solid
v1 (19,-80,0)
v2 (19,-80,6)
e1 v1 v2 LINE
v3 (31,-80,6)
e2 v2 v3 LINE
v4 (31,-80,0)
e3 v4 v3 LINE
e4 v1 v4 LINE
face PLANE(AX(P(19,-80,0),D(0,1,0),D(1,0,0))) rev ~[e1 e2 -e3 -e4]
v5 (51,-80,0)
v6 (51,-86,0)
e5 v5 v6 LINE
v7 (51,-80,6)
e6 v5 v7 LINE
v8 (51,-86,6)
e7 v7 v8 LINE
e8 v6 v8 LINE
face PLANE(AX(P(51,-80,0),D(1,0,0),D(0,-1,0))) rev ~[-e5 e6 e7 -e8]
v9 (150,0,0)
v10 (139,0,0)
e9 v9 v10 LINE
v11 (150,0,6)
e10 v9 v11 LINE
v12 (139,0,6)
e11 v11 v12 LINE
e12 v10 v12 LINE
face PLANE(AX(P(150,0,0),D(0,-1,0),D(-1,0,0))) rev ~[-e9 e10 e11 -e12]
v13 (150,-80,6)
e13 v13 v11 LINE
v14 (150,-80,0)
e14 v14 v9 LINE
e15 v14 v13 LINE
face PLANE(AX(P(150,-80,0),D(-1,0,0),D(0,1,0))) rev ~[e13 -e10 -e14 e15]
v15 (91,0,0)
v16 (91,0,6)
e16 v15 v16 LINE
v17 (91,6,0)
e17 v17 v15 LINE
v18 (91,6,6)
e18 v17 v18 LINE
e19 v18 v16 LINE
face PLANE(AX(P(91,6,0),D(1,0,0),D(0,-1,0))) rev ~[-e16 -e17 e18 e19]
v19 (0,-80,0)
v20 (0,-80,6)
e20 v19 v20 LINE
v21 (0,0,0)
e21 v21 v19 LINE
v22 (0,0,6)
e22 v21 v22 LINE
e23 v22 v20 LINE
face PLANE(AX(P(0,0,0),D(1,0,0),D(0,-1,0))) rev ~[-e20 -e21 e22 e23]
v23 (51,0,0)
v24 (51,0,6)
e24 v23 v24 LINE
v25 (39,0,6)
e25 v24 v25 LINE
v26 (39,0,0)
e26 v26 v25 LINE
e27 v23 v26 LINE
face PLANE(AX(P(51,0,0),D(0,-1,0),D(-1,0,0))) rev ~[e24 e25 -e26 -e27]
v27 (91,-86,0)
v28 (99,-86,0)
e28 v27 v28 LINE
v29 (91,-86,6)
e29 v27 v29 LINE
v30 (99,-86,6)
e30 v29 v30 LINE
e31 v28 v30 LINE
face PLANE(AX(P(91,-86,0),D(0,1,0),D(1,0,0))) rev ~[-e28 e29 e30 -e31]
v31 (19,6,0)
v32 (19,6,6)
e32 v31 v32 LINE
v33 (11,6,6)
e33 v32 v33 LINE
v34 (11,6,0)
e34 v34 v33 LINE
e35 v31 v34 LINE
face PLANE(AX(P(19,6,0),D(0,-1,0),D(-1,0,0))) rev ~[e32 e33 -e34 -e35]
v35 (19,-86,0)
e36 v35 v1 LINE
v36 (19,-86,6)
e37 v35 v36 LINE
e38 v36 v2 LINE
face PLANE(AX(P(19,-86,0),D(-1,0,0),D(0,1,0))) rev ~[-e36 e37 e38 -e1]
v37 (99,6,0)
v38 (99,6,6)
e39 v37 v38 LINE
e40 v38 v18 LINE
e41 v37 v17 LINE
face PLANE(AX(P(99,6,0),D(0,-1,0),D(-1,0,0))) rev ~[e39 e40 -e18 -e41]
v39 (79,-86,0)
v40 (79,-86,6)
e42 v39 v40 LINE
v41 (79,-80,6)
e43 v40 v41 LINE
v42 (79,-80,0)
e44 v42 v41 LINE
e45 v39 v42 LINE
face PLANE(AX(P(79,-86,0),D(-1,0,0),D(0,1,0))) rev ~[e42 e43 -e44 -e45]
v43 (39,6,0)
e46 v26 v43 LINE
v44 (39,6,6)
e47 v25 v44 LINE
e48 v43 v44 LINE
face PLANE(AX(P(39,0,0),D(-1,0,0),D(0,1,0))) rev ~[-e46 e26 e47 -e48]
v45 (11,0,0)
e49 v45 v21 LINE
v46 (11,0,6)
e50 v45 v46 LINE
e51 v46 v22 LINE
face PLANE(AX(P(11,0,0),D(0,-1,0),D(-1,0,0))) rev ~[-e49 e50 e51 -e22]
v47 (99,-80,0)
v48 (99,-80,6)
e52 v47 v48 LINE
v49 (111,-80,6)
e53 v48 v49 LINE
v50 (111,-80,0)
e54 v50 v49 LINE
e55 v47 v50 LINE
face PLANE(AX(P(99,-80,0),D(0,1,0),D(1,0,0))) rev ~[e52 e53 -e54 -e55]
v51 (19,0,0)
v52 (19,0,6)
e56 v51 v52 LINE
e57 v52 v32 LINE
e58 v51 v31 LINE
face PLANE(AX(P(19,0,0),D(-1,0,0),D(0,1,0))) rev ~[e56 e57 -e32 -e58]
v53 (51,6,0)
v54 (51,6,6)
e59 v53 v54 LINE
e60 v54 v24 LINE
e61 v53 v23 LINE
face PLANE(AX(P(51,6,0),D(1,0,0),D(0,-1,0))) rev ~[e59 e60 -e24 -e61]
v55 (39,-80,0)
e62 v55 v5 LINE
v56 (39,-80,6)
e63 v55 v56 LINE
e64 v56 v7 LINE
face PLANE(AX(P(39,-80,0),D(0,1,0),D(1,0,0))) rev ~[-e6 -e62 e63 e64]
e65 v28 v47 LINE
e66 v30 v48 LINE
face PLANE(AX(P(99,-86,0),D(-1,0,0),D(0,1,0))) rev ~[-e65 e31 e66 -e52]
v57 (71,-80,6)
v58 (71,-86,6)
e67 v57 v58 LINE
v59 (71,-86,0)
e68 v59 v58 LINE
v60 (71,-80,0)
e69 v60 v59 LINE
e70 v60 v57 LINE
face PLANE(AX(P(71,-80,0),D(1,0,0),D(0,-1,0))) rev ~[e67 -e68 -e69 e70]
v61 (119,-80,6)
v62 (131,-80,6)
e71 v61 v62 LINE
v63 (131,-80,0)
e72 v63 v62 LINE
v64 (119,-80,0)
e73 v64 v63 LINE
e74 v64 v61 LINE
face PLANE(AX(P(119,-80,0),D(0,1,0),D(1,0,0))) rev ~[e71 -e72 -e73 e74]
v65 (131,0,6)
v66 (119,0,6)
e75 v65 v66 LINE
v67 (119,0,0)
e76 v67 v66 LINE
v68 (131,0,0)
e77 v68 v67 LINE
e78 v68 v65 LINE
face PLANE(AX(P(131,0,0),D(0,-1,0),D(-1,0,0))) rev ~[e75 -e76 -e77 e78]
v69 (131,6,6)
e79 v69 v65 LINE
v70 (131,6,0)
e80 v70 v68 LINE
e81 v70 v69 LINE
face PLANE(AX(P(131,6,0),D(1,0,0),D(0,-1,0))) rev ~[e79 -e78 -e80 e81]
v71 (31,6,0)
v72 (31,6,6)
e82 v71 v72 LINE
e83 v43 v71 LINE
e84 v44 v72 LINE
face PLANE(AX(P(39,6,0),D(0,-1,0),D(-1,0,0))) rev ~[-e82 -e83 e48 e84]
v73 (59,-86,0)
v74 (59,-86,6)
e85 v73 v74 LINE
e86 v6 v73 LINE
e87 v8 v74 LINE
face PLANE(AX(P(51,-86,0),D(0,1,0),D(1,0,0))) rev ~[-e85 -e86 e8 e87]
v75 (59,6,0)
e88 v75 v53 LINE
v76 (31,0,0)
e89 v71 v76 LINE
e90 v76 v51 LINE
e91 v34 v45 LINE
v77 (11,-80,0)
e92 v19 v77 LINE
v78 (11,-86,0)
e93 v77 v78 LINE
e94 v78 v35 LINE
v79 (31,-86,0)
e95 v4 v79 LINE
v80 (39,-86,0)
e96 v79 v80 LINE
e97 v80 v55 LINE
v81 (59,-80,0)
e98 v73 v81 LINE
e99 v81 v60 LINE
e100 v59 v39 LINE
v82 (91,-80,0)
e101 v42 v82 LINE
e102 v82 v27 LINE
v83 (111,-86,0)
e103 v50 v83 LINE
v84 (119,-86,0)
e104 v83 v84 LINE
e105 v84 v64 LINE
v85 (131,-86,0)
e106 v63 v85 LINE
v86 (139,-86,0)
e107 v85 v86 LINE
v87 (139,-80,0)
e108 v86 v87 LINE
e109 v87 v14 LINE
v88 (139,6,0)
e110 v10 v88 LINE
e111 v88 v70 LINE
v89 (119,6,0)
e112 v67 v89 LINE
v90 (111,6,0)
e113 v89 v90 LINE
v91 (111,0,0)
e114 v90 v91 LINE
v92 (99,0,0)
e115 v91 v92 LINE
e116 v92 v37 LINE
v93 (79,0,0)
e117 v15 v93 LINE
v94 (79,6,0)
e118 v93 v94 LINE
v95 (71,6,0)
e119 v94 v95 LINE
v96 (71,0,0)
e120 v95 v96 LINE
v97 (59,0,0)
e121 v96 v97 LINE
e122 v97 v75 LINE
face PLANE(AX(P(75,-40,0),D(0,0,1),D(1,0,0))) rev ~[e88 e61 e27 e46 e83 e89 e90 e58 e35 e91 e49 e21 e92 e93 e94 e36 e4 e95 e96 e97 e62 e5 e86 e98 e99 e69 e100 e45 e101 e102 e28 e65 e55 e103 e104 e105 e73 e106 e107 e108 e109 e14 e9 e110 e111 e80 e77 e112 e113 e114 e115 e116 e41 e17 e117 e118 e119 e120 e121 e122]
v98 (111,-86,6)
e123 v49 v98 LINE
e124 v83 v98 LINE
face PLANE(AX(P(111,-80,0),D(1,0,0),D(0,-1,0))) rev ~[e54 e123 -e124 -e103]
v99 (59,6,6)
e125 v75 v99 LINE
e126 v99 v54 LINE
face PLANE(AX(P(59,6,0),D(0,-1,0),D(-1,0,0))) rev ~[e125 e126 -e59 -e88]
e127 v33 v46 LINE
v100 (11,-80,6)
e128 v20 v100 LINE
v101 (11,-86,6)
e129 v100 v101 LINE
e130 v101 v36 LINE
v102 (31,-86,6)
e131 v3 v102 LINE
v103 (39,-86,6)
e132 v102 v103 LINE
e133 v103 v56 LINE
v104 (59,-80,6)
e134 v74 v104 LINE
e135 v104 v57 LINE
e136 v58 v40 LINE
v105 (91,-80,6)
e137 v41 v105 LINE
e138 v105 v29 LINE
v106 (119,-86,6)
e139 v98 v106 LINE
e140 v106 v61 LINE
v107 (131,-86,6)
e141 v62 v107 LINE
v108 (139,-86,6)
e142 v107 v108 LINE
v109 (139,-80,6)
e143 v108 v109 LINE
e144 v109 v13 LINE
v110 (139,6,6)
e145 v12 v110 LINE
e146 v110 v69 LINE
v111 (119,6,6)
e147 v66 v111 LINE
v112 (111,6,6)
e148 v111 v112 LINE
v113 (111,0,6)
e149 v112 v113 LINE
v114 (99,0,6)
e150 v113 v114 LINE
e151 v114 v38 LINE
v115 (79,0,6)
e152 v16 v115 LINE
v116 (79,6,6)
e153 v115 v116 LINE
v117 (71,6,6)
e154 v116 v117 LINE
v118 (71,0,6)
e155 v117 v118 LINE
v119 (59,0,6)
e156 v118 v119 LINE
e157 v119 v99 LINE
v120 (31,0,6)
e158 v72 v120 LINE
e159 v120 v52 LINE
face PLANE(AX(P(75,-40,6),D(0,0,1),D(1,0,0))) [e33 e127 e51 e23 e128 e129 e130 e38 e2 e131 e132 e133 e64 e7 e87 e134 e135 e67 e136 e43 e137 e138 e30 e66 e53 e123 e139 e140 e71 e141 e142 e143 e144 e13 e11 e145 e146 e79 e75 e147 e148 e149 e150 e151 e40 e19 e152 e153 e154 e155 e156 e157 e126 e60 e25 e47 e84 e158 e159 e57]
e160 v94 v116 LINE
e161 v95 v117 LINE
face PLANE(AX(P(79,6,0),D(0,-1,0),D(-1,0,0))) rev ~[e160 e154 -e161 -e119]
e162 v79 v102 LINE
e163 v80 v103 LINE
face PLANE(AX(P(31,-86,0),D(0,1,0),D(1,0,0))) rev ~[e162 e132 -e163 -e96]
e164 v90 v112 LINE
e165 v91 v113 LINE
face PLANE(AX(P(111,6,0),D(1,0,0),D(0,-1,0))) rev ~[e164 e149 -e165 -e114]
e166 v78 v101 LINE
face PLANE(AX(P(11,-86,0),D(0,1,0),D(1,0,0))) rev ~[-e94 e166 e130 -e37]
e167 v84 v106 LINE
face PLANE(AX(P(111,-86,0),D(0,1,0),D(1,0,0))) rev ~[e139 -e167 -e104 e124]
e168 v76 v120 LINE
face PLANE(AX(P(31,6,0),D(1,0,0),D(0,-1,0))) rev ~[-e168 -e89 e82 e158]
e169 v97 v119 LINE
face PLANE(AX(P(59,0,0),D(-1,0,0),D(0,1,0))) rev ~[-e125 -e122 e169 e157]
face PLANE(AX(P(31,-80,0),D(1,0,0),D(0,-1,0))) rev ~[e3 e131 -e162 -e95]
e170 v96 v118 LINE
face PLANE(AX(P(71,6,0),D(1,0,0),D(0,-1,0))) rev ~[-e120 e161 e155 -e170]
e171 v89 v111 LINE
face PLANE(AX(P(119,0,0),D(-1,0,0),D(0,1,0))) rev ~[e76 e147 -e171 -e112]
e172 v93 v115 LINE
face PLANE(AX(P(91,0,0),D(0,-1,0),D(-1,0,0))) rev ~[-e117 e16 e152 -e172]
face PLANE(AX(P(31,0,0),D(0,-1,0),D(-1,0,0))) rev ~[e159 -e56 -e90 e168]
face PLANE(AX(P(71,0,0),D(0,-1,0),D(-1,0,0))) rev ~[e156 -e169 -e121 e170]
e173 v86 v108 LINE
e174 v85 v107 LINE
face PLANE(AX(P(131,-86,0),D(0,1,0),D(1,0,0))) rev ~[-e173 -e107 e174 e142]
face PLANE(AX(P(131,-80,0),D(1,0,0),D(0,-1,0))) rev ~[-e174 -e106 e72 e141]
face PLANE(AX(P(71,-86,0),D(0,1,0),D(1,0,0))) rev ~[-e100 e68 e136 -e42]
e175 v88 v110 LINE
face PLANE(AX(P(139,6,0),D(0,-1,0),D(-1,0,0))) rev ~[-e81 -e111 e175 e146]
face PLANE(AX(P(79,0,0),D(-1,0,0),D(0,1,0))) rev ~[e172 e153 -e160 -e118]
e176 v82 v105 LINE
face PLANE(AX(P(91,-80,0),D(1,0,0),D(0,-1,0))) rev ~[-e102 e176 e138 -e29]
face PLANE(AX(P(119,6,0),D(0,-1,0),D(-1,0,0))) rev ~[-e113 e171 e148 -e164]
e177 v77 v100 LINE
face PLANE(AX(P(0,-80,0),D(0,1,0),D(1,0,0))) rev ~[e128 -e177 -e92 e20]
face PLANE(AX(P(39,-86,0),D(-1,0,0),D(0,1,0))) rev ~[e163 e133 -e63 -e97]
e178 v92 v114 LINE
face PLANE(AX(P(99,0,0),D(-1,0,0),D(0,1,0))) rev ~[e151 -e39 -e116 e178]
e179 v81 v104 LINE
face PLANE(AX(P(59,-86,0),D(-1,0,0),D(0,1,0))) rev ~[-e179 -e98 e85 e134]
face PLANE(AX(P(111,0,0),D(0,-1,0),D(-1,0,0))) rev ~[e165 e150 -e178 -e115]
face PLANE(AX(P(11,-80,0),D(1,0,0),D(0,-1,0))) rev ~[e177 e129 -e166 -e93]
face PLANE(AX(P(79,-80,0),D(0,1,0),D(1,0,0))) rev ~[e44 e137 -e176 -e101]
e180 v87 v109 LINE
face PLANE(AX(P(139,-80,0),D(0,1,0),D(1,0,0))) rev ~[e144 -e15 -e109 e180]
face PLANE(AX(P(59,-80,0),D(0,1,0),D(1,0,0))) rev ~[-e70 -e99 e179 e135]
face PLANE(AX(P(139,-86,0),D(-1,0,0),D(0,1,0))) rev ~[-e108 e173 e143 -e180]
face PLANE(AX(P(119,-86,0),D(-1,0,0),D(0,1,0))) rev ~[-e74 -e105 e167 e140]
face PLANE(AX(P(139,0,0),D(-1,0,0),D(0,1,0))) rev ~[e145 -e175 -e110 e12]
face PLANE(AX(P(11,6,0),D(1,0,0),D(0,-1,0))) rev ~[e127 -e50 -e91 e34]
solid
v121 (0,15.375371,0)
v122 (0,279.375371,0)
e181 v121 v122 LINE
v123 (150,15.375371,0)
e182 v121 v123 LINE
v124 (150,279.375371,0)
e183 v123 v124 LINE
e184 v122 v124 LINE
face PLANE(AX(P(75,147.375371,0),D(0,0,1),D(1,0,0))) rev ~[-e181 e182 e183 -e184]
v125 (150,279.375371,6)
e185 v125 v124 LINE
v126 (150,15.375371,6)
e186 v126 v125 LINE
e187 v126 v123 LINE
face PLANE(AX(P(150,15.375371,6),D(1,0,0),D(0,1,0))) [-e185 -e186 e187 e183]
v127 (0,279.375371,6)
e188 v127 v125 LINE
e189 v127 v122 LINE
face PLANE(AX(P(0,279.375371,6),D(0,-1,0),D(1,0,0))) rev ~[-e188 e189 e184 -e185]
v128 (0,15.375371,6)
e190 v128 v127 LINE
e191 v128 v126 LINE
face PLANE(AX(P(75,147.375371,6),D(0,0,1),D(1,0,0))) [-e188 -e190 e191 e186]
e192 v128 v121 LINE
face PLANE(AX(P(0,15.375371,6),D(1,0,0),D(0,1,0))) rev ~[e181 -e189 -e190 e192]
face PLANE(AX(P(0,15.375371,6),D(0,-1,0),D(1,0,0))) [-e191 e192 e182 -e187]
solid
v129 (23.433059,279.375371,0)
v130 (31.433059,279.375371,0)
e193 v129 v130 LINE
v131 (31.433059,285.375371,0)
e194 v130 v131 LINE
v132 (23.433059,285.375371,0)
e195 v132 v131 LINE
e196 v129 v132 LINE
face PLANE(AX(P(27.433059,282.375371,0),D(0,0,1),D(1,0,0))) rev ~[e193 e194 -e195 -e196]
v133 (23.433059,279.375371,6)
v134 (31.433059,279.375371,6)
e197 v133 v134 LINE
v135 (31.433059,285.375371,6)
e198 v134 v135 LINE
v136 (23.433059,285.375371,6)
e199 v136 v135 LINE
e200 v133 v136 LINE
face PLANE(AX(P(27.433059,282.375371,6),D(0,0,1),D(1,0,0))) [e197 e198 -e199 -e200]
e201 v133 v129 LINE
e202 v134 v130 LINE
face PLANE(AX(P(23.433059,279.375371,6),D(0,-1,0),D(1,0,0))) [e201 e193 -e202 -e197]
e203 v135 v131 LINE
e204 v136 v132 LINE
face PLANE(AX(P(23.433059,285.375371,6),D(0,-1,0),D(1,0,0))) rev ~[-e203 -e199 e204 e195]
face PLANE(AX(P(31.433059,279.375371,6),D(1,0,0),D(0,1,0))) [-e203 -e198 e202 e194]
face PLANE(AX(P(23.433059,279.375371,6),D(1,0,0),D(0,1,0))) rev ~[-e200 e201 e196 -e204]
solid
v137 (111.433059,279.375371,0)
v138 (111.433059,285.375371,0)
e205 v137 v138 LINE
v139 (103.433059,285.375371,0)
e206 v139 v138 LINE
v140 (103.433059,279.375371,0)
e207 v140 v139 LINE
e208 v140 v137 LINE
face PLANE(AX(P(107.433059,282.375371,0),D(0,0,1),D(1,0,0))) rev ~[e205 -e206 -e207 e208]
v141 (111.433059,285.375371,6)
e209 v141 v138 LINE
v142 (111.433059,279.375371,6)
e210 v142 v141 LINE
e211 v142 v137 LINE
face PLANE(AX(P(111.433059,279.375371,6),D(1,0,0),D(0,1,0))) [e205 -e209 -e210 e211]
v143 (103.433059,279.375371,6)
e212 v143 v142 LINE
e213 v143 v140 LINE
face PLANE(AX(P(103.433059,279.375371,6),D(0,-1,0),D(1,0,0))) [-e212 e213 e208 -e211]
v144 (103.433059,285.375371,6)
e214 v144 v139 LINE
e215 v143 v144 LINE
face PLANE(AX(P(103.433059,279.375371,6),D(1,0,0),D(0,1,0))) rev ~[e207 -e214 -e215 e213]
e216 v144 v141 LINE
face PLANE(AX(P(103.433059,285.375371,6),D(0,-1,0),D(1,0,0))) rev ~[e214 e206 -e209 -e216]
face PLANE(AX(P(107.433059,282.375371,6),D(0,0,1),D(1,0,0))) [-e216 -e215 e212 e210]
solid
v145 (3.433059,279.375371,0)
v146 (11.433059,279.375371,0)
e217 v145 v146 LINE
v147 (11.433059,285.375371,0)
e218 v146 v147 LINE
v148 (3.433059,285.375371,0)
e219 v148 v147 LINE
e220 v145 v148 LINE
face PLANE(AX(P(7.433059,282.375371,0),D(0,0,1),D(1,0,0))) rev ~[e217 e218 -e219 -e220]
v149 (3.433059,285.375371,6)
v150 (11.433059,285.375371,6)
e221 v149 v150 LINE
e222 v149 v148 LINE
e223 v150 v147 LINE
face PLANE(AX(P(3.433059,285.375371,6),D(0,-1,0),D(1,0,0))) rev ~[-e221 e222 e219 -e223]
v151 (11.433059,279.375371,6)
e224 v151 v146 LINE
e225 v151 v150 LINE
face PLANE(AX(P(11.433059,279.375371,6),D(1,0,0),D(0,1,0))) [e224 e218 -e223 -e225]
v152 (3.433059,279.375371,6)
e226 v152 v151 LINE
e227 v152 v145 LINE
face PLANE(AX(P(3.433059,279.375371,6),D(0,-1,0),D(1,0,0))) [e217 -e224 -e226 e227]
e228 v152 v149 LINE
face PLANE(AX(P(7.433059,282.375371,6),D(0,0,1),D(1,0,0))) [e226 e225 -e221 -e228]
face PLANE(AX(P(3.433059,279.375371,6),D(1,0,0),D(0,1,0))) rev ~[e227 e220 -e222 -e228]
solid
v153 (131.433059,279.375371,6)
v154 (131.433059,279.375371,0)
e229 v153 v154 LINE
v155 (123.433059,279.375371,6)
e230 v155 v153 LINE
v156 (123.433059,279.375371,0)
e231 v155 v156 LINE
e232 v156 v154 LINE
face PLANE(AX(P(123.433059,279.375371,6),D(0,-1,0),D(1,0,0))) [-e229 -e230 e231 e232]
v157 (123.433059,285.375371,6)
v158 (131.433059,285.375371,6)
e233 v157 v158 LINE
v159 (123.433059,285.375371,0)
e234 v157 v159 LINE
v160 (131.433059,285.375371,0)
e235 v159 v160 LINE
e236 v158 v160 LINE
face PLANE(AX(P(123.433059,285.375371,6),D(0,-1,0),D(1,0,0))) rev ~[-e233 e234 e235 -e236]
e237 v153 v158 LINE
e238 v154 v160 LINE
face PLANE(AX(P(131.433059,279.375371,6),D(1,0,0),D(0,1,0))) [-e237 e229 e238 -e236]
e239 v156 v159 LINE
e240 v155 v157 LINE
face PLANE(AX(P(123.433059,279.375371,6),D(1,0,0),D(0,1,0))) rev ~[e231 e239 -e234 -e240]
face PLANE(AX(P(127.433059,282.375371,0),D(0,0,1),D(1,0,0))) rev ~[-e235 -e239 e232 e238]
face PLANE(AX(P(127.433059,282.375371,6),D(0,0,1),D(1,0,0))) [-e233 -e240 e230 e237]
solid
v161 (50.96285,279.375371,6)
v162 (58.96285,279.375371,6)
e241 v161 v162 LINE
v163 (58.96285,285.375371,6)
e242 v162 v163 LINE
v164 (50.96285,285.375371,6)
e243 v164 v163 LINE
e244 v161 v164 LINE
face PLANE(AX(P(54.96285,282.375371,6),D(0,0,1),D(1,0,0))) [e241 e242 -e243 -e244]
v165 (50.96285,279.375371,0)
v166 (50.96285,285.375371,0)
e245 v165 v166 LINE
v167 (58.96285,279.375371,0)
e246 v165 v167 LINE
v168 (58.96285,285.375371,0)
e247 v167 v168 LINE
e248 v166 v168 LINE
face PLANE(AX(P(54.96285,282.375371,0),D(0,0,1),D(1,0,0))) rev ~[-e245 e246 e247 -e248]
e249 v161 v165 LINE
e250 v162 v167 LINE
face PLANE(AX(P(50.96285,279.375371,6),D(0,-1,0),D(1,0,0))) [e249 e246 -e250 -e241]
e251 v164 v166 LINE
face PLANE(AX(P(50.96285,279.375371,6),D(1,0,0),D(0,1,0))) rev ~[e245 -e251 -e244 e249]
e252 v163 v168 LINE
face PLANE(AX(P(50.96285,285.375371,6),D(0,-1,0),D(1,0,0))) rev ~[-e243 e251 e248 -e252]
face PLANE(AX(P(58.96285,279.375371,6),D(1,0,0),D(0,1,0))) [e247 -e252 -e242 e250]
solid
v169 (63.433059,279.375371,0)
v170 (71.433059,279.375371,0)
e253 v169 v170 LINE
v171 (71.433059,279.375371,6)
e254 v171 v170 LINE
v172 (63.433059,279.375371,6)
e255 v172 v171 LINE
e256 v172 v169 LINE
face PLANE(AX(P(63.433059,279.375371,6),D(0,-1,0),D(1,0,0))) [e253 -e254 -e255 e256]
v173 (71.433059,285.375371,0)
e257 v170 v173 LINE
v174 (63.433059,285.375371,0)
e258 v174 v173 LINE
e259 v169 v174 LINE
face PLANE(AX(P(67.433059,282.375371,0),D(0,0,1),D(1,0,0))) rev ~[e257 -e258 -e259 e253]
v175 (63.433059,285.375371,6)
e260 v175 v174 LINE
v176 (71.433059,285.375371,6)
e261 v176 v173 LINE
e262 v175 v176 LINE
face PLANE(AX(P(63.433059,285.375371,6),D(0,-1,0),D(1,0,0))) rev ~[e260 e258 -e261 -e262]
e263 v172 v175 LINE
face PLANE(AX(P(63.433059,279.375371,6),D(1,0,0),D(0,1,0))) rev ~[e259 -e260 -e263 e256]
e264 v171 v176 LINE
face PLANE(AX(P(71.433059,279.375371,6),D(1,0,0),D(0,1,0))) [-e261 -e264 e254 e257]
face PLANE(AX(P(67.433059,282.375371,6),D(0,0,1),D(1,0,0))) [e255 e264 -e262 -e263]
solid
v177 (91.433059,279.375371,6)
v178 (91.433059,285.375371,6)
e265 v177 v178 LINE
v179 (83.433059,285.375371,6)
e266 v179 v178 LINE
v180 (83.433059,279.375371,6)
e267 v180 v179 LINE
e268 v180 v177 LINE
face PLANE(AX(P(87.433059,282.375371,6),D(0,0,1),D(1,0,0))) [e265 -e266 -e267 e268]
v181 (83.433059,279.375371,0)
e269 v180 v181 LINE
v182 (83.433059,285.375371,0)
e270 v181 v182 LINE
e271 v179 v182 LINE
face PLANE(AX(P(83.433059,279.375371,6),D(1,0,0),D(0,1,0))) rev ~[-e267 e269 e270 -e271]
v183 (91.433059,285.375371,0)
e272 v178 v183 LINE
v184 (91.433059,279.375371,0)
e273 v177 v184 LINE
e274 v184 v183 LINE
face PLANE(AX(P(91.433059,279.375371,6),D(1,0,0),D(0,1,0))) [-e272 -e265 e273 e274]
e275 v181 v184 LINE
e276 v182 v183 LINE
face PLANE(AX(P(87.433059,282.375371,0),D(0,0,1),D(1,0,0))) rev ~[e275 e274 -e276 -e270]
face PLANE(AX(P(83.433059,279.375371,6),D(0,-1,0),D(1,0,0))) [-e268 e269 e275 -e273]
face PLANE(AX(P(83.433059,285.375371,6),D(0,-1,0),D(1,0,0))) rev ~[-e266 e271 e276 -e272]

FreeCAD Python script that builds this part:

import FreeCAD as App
import Part
import Sketcher
from FreeCAD import Vector

doc = App.newDocument("Part")
params = doc.addObject("Spreadsheet::Sheet", "Params")
for row, (alias, value) in enumerate([
    ("sketch1_width", "8 mm"),
    ("sketch1_width2", "12 mm"),
    ("sketch1_width3", "11 mm"),
    ("sketch1_height", "6 mm"),
    ("sketch1_height2", "80 mm"),
    ("pad1_length", "6 mm"),
    ("sketch2_width", "150 mm"),
    ("sketch2_height", "264 mm"),
    ("pad2_length", "6 mm"),
    ("sketch3_width", "8 mm"),
    ("sketch3_height", "6 mm"),
    ("pad3_length", "6 mm"),
    ("sketch4_width", "8 mm"),
    ("sketch4_height", "6 mm"),
    ("pad4_length", "6 mm"),
    ("sketch5_width", "8 mm"),
    ("sketch5_height", "6 mm"),
    ("pad5_length", "6 mm"),
    ("sketch6_width", "8 mm"),
    ("sketch6_height", "6 mm"),
    ("pad6_length", "6 mm"),
    ("sketch7_width", "8 mm"),
    ("sketch7_height", "6 mm"),
    ("pad7_length", "6 mm"),
    ("sketch8_width", "8 mm"),
    ("sketch8_height", "6 mm"),
    ("pad8_length", "6 mm"),
    ("sketch9_width", "8 mm"),
    ("sketch9_height", "6 mm"),
    ("pad9_length", "6 mm"),
], start=1):
    params.set(f"A{row}", alias)
    params.set(f"B{row}", "=" + value)
    params.setAlias(f"B{row}", alias)

body = doc.addObject("PartDesign::Body", "Body")

# Sketch on XY plane
sketch1 = doc.addObject("Sketcher::SketchObject", "Sketch")
body.addObject(sketch1)
sketch1.AttachmentSupport = (doc.XY_Plane, [""])
sketch1.MapMode = "FlatFace"
sketch1.addGeometry([
    Part.LineSegment(Vector(11, -80, 0), Vector(11, -86, 0)),  # 0
    Part.LineSegment(Vector(11, -86, 0), Vector(19, -86, 0)),  # 1
    Part.LineSegment(Vector(19, -86, 0), Vector(19, -80, 0)),  # 2
    Part.LineSegment(Vector(19, -80, 0), Vector(31, -80, 0)),  # 3
    Part.LineSegment(Vector(31, -80, 0), Vector(31, -86, 0)),  # 4
    Part.LineSegment(Vector(31, -86, 0), Vector(39, -86, 0)),  # 5
    Part.LineSegment(Vector(39, -86, 0), Vector(39, -80, 0)),  # 6
    Part.LineSegment(Vector(39, -80, 0), Vector(51, -80, 0)),  # 7
    Part.LineSegment(Vector(51, -80, 0), Vector(51, -86, 0)),  # 8
    Part.LineSegment(Vector(51, -86, 0), Vector(59, -86, 0)),  # 9
    Part.LineSegment(Vector(59, -86, 0), Vector(59, -80, 0)),  # 10
    Part.LineSegment(Vector(59, -80, 0), Vector(71, -80, 0)),  # 11
    Part.LineSegment(Vector(71, -80, 0), Vector(71, -86, 0)),  # 12
    Part.LineSegment(Vector(71, -86, 0), Vector(79, -86, 0)),  # 13
    Part.LineSegment(Vector(79, -86, 0), Vector(79, -80, 0)),  # 14
    Part.LineSegment(Vector(79, -80, 0), Vector(91, -80, 0)),  # 15
    Part.LineSegment(Vector(91, -80, 0), Vector(91, -86, 0)),  # 16
    Part.LineSegment(Vector(91, -86, 0), Vector(99, -86, 0)),  # 17
    Part.LineSegment(Vector(99, -86, 0), Vector(99, -80, 0)),  # 18
    Part.LineSegment(Vector(99, -80, 0), Vector(111, -80, 0)),  # 19
    Part.LineSegment(Vector(111, -80, 0), Vector(111, -86, 0)),  # 20
    Part.LineSegment(Vector(111, -86, 0), Vector(119, -86, 0)),  # 21
    Part.LineSegment(Vector(119, -86, 0), Vector(119, -80, 0)),  # 22
    Part.LineSegment(Vector(119, -80, 0), Vector(131, -80, 0)),  # 23
    Part.LineSegment(Vector(131, -80, 0), Vector(131, -86, 0)),  # 24
    Part.LineSegment(Vector(131, -86, 0), Vector(139, -86, 0)),  # 25
    Part.LineSegment(Vector(139, -86, 0), Vector(139, -80, 0)),  # 26
    Part.LineSegment(Vector(139, -80, 0), Vector(150, -80, 0)),  # 27
    Part.LineSegment(Vector(150, -80, 0), Vector(150, 0, 0)),  # 28
    Part.LineSegment(Vector(150, 0, 0), Vector(139, 0, 0)),  # 29
    Part.LineSegment(Vector(139, 0, 0), Vector(139, 6, 0)),  # 30
    Part.LineSegment(Vector(139, 6, 0), Vector(131, 6, 0)),  # 31
    Part.LineSegment(Vector(131, 6, 0), Vector(131, 0, 0)),  # 32
    Part.LineSegment(Vector(131, 0, 0), Vector(119, 0, 0)),  # 33
    Part.LineSegment(Vector(119, 0, 0), Vector(119, 6, 0)),  # 34
    Part.LineSegment(Vector(119, 6, 0), Vector(111, 6, 0)),  # 35
    Part.LineSegment(Vector(111, 6, 0), Vector(111, 0, 0)),  # 36
    Part.LineSegment(Vector(111, 0, 0), Vector(99, 0, 0)),  # 37
    Part.LineSegment(Vector(99, 0, 0), Vector(99, 6, 0)),  # 38
    Part.LineSegment(Vector(99, 6, 0), Vector(91, 6, 0)),  # 39
    Part.LineSegment(Vector(91, 6, 0), Vector(91, 0, 0)),  # 40
    Part.LineSegment(Vector(91, 0, 0), Vector(79, 0, 0)),  # 41
    Part.LineSegment(Vector(79, 0, 0), Vector(79, 6, 0)),  # 42
    Part.LineSegment(Vector(79, 6, 0), Vector(71, 6, 0)),  # 43
    Part.LineSegment(Vector(71, 6, 0), Vector(71, 0, 0)),  # 44
    Part.LineSegment(Vector(71, 0, 0), Vector(59, 0, 0)),  # 45
    Part.LineSegment(Vector(59, 0, 0), Vector(59, 6, 0)),  # 46
    Part.LineSegment(Vector(59, 6, 0), Vector(51, 6, 0)),  # 47
    Part.LineSegment(Vector(51, 6, 0), Vector(51, 0, 0)),  # 48
    Part.LineSegment(Vector(51, 0, 0), Vector(39, 0, 0)),  # 49
    Part.LineSegment(Vector(39, 0, 0), Vector(39, 6, 0)),  # 50
    Part.LineSegment(Vector(39, 6, 0), Vector(31, 6, 0)),  # 51
    Part.LineSegment(Vector(31, 6, 0), Vector(31, 0, 0)),  # 52
    Part.LineSegment(Vector(31, 0, 0), Vector(19, 0, 0)),  # 53
    Part.LineSegment(Vector(19, 0, 0), Vector(19, 6, 0)),  # 54
    Part.LineSegment(Vector(19, 6, 0), Vector(11, 6, 0)),  # 55
    Part.LineSegment(Vector(11, 6, 0), Vector(11, 0, 0)),  # 56
    Part.LineSegment(Vector(11, 0, 0), Vector(0, 0, 0)),  # 57
    Part.LineSegment(Vector(0, 0, 0), Vector(0, -80, 0)),  # 58
    Part.LineSegment(Vector(0, -80, 0), Vector(11, -80, 0)),  # 59
], False)
sketch1.addConstraint([
    Sketcher.Constraint("Coincident", 0, 2, 1, 1),
    Sketcher.Constraint("Coincident", 1, 2, 2, 1),
    Sketcher.Constraint("Coincident", 2, 2, 3, 1),
    Sketcher.Constraint("Coincident", 3, 2, 4, 1),
    Sketcher.Constraint("Coincident", 4, 2, 5, 1),
    Sketcher.Constraint("Coincident", 5, 2, 6, 1),
    Sketcher.Constraint("Coincident", 6, 2, 7, 1),
    Sketcher.Constraint("Coincident", 7, 2, 8, 1),
    Sketcher.Constraint("Coincident", 8, 2, 9, 1),
    Sketcher.Constraint("Coincident", 9, 2, 10, 1),
    Sketcher.Constraint("Coincident", 10, 2, 11, 1),
    Sketcher.Constraint("Coincident", 11, 2, 12, 1),
    Sketcher.Constraint("Coincident", 12, 2, 13, 1),
    Sketcher.Constraint("Coincident", 13, 2, 14, 1),
    Sketcher.Constraint("Coincident", 14, 2, 15, 1),
    Sketcher.Constraint("Coincident", 15, 2, 16, 1),
    Sketcher.Constraint("Coincident", 16, 2, 17, 1),
    Sketcher.Constraint("Coincident", 17, 2, 18, 1),
    Sketcher.Constraint("Coincident", 18, 2, 19, 1),
    Sketcher.Constraint("Coincident", 19, 2, 20, 1),
    Sketcher.Constraint("Coincident", 20, 2, 21, 1),
    Sketcher.Constraint("Coincident", 21, 2, 22, 1),
    Sketcher.Constraint("Coincident", 22, 2, 23, 1),
    Sketcher.Constraint("Coincident", 23, 2, 24, 1),
    Sketcher.Constraint("Coincident", 24, 2, 25, 1),
    Sketcher.Constraint("Coincident", 25, 2, 26, 1),
    Sketcher.Constraint("Coincident", 26, 2, 27, 1),
    Sketcher.Constraint("Coincident", 27, 2, 28, 1),
    Sketcher.Constraint("Coincident", 28, 2, 29, 1),
    Sketcher.Constraint("Coincident", 29, 2, 30, 1),
    Sketcher.Constraint("Coincident", 30, 2, 31, 1),
    Sketcher.Constraint("Coincident", 31, 2, 32, 1),
    Sketcher.Constraint("Coincident", 32, 2, 33, 1),
    Sketcher.Constraint("Coincident", 33, 2, 34, 1),
    Sketcher.Constraint("Coincident", 34, 2, 35, 1),
    Sketcher.Constraint("Coincident", 35, 2, 36, 1),
    Sketcher.Constraint("Coincident", 36, 2, 37, 1),
    Sketcher.Constraint("Coincident", 37, 2, 38, 1),
    Sketcher.Constraint("Coincident", 38, 2, 39, 1),
    Sketcher.Constraint("Coincident", 39, 2, 40, 1),
    Sketcher.Constraint("Coincident", 40, 2, 41, 1),
    Sketcher.Constraint("Coincident", 41, 2, 42, 1),
    Sketcher.Constraint("Coincident", 42, 2, 43, 1),
    Sketcher.Constraint("Coincident", 43, 2, 44, 1),
    Sketcher.Constraint("Coincident", 44, 2, 45, 1),
    Sketcher.Constraint("Coincident", 45, 2, 46, 1),
    Sketcher.Constraint("Coincident", 46, 2, 47, 1),
    Sketcher.Constraint("Coincident", 47, 2, 48, 1),
    Sketcher.Constraint("Coincident", 48, 2, 49, 1),
    Sketcher.Constraint("Coincident", 49, 2, 50, 1),
    Sketcher.Constraint("Coincident", 50, 2, 51, 1),
    Sketcher.Constraint("Coincident", 51, 2, 52, 1),
    Sketcher.Constraint("Coincident", 52, 2, 53, 1),
    Sketcher.Constraint("Coincident", 53, 2, 54, 1),
    Sketcher.Constraint("Coincident", 54, 2, 55, 1),
    Sketcher.Constraint("Coincident", 55, 2, 56, 1),
    Sketcher.Constraint("Coincident", 56, 2, 57, 1),
    Sketcher.Constraint("Coincident", 57, 2, 58, 1),
    Sketcher.Constraint("Coincident", 58, 2, 59, 1),
    Sketcher.Constraint("Coincident", 59, 2, 0, 1),
    Sketcher.Constraint("Vertical", 0),
    Sketcher.Constraint("Horizontal", 1),
    Sketcher.Constraint("Vertical", 2),
    Sketcher.Constraint("Horizontal", 3),
    Sketcher.Constraint("Vertical", 4),
    Sketcher.Constraint("Horizontal", 5),
    Sketcher.Constraint("Vertical", 6),
    Sketcher.Constraint("Horizontal", 7),
    Sketcher.Constraint("Vertical", 8),
    Sketcher.Constraint("Horizontal", 9),
    Sketcher.Constraint("Vertical", 10),
    Sketcher.Constraint("Horizontal", 11),
    Sketcher.Constraint("Vertical", 12),
    Sketcher.Constraint("Horizontal", 13),
    Sketcher.Constraint("Vertical", 14),
    Sketcher.Constraint("Horizontal", 15),
    Sketcher.Constraint("Vertical", 16),
    Sketcher.Constraint("Horizontal", 17),
    Sketcher.Constraint("Vertical", 18),
    Sketcher.Constraint("Horizontal", 19),
    Sketcher.Constraint("Vertical", 20),
    Sketcher.Constraint("Horizontal", 21),
    Sketcher.Constraint("Vertical", 22),
    Sketcher.Constraint("Horizontal", 23),
    Sketcher.Constraint("Vertical", 24),
    Sketcher.Constraint("Horizontal", 25),
    Sketcher.Constraint("Vertical", 26),
    Sketcher.Constraint("Horizontal", 27),
    Sketcher.Constraint("Vertical", 28),
    Sketcher.Constraint("Horizontal", 29),
    Sketcher.Constraint("Vertical", 30),
    Sketcher.Constraint("Horizontal", 31),
    Sketcher.Constraint("Vertical", 32),
    Sketcher.Constraint("Horizontal", 33),
    Sketcher.Constraint("Vertical", 34),
    Sketcher.Constraint("Horizontal", 35),
    Sketcher.Constraint("Vertical", 36),
    Sketcher.Constraint("Horizontal", 37),
    Sketcher.Constraint("Vertical", 38),
    Sketcher.Constraint("Horizontal", 39),
    Sketcher.Constraint("Vertical", 40),
    Sketcher.Constraint("Horizontal", 41),
    Sketcher.Constraint("Vertical", 42),
    Sketcher.Constraint("Horizontal", 43),
    Sketcher.Constraint("Vertical", 44),
    Sketcher.Constraint("Horizontal", 45),
    Sketcher.Constraint("Vertical", 46),
    Sketcher.Constraint("Horizontal", 47),
    Sketcher.Constraint("Vertical", 48),
    Sketcher.Constraint("Horizontal", 49),
    Sketcher.Constraint("Vertical", 50),
    Sketcher.Constraint("Horizontal", 51),
    Sketcher.Constraint("Vertical", 52),
    Sketcher.Constraint("Horizontal", 53),
    Sketcher.Constraint("Vertical", 54),
    Sketcher.Constraint("Horizontal", 55),
    Sketcher.Constraint("Vertical", 56),
    Sketcher.Constraint("Horizontal", 57),
    Sketcher.Constraint("Vertical", 58),
    Sketcher.Constraint("Horizontal", 59),
    Sketcher.Constraint("Coincident", 57, 2, -1, 1),
    Sketcher.Constraint("PointOnObject", 28, 2, -1),
    Sketcher.Constraint("PointOnObject", 32, 2, -1),
    Sketcher.Constraint("PointOnObject", 36, 2, -1),
    Sketcher.Constraint("PointOnObject", 40, 2, -1),
    Sketcher.Constraint("PointOnObject", 44, 2, -1),
    Sketcher.Constraint("PointOnObject", 48, 2, -1),
    Sketcher.Constraint("PointOnObject", 52, 2, -1),
    Sketcher.Constraint("Horizontal", 1, 2, 4, 2),
    Sketcher.Constraint("Horizontal", 3, 2, 6, 2),
    Sketcher.Constraint("Horizontal", 5, 2, 8, 2),
    Sketcher.Constraint("Horizontal", 7, 2, 10, 2),
    Sketcher.Constraint("Horizontal", 9, 2, 12, 2),
    Sketcher.Constraint("Horizontal", 11, 2, 14, 2),
    Sketcher.Constraint("Horizontal", 13, 2, 16, 2),
    Sketcher.Constraint("Horizontal", 15, 2, 18, 2),
    Sketcher.Constraint("Horizontal", 17, 2, 20, 2),
    Sketcher.Constraint("Horizontal", 19, 2, 22, 2),
    Sketcher.Constraint("Horizontal", 21, 2, 24, 2),
    Sketcher.Constraint("Horizontal", 23, 2, 26, 2),
    Sketcher.Constraint("Horizontal", 31, 2, 34, 2),
    Sketcher.Constraint("Horizontal", 35, 2, 38, 2),
    Sketcher.Constraint("Horizontal", 39, 2, 42, 2),
    Sketcher.Constraint("Horizontal", 43, 2, 46, 2),
    Sketcher.Constraint("Horizontal", 47, 2, 50, 2),
    Sketcher.Constraint("Horizontal", 51, 2, 54, 2),
    Sketcher.Constraint("Horizontal", 27, 2, 58, 2),
    Sketcher.Constraint("Vertical", 26, 2, 29, 2),
    Sketcher.Constraint("Vertical", 24, 2, 31, 2),
    Sketcher.Constraint("Vertical", 22, 2, 33, 2),
    Sketcher.Constraint("Vertical", 20, 2, 35, 2),
    Sketcher.Constraint("Vertical", 18, 2, 37, 2),
    Sketcher.Constraint("Vertical", 16, 2, 39, 2),
    Sketcher.Constraint("Vertical", 14, 2, 41, 2),
    Sketcher.Constraint("Vertical", 12, 2, 43, 2),
    Sketcher.Constraint("Vertical", 10, 2, 45, 2),
    Sketcher.Constraint("Vertical", 8, 2, 47, 2),
    Sketcher.Constraint("Vertical", 6, 2, 49, 2),
    Sketcher.Constraint("Vertical", 4, 2, 51, 2),
    Sketcher.Constraint("Vertical", 2, 2, 53, 2),
    Sketcher.Constraint("Vertical", 0, 2, 55, 2),
    Sketcher.Constraint("Equal", 1, 5),
    Sketcher.Constraint("Equal", 3, 7),
    Sketcher.Constraint("Equal", 5, 9),
    Sketcher.Constraint("Equal", 7, 11),
    Sketcher.Constraint("Equal", 9, 13),
    Sketcher.Constraint("Equal", 11, 15),
    Sketcher.Constraint("Equal", 13, 17),
    Sketcher.Constraint("Equal", 15, 19),
    Sketcher.Constraint("Equal", 17, 21),
    Sketcher.Constraint("Equal", 19, 23),
    Sketcher.Constraint("Equal", 21, 25),
    Sketcher.Constraint("Equal", 29, 57),
    Sketcher.Constraint("Equal", 26, 30),
    Sketcher.Constraint("DistanceX", 1, 1, 1, 2, 8.0),
    Sketcher.Constraint("DistanceX", 3, 1, 3, 2, 12.0),
    Sketcher.Constraint("DistanceX", 27, 1, 27, 2, 11.0),
    Sketcher.Constraint("DistanceY", 0, 2, 0, 1, 6.0),
    Sketcher.Constraint("DistanceY", 28, 1, 28, 2, 80.0),
])
sketch1.setExpression("Constraints[174]", "Params.sketch1_width")
sketch1.setExpression("Constraints[175]", "Params.sketch1_width2")
sketch1.setExpression("Constraints[176]", "Params.sketch1_width3")
sketch1.setExpression("Constraints[177]", "Params.sketch1_height")
sketch1.setExpression("Constraints[178]", "Params.sketch1_height2")
pad1 = doc.addObject("PartDesign::Pad", "Pad")
body.addObject(pad1)
pad1.Profile = sketch1
pad1.setExpression("Length", "Params.pad1_length")
body2 = doc.addObject("PartDesign::Body", "Body001")

# Sketch on XY plane
sketch2 = doc.addObject("Sketcher::SketchObject", "Sketch001")
body2.addObject(sketch2)
sketch2.AttachmentSupport = (doc.getObject("XY_Plane001"), [""])
sketch2.MapMode = "FlatFace"
sketch2.AttachmentOffset = App.Placement(Vector(0, 0, 6), App.Rotation())
sketch2.addGeometry([
    Part.LineSegment(Vector(0, 279, 0), Vector(0, 15, 0)),
    Part.LineSegment(Vector(0, 15, 0), Vector(150, 15, 0)),
    Part.LineSegment(Vector(150, 15, 0), Vector(150, 279, 0)),
    Part.LineSegment(Vector(150, 279, 0), Vector(0, 279, 0)),
], False)
sketch2.addConstraint([
    Sketcher.Constraint("Coincident", 0, 2, 1, 1),
    Sketcher.Constraint("Coincident", 1, 2, 2, 1),
    Sketcher.Constraint("Coincident", 2, 2, 3, 1),
    Sketcher.Constraint("Coincident", 3, 2, 0, 1),
    Sketcher.Constraint("Vertical", 0),
    Sketcher.Constraint("Horizontal", 1),
    Sketcher.Constraint("Vertical", 2),
    Sketcher.Constraint("Horizontal", 3),
    Sketcher.Constraint("PointOnObject", 0, 2, -2),
    Sketcher.Constraint("DistanceX", 1, 1, 1, 2, 150.0),
    Sketcher.Constraint("DistanceY", 0, 2, 0, 1, 264.0),
    Sketcher.Constraint("DistanceY", -1, 1, 0, 2, 15.375371),
])
sketch2.setExpression("Constraints[9]", "Params.sketch2_width")
sketch2.setExpression("Constraints[10]", "Params.sketch2_height")
pad2 = doc.addObject("PartDesign::Pad", "Pad001")
body2.addObject(pad2)
pad2.Profile = sketch2
pad2.setExpression("Length", "Params.pad2_length")
pad2.Reversed = True
body3 = doc.addObject("PartDesign::Body", "Body002")

# Sketch on XY plane
sketch3 = doc.addObject("Sketcher::SketchObject", "Sketch002")
body3.addObject(sketch3)
sketch3.AttachmentSupport = (doc.getObject("XY_Plane002"), [""])
sketch3.MapMode = "FlatFace"
sketch3.AttachmentOffset = App.Placement(Vector(0, 0, 6), App.Rotation())
sketch3.addGeometry([
    Part.LineSegment(Vector(3, 285, 0), Vector(3, 279, 0)),
    Part.LineSegment(Vector(3, 279, 0), Vector(11, 279, 0)),
    Part.LineSegment(Vector(11, 279, 0), Vector(11, 285, 0)),
    Part.LineSegment(Vector(11, 285, 0), Vector(3, 285, 0)),
], False)
sketch3.addConstraint([
    Sketcher.Constraint("Coincident", 0, 2, 1, 1),
    Sketcher.Constraint("Coincident", 1, 2, 2, 1),
    Sketcher.Constraint("Coincident", 2, 2, 3, 1),
    Sketcher.Constraint("Coincident", 3, 2, 0, 1),
    Sketcher.Constraint("Vertical", 0),
    Sketcher.Constraint("Horizontal", 1),
    Sketcher.Constraint("Vertical", 2),
    Sketcher.Constraint("Horizontal", 3),
    Sketcher.Constraint("DistanceX", 1, 1, 1, 2, 8.0),
    Sketcher.Constraint("DistanceY", 0, 2, 0, 1, 6.0),
    Sketcher.Constraint("DistanceX", -1, 1, 0, 2, 3.433059),
    Sketcher.Constraint("DistanceY", -1, 1, 0, 2, 279.375371),
])
sketch3.setExpression("Constraints[8]", "Params.sketch3_width")
sketch3.setExpression("Constraints[9]", "Params.sketch3_height")
pad3 = doc.addObject("PartDesign::Pad", "Pad002")
body3.addObject(pad3)
pad3.Profile = sketch3
pad3.setExpression("Length", "Params.pad3_length")
pad3.Reversed = True
body4 = doc.addObject("PartDesign::Body", "Body003")

# Sketch on XY plane
sketch4 = doc.addObject("Sketcher::SketchObject", "Sketch003")
body4.addObject(sketch4)
sketch4.AttachmentSupport = (doc.getObject("XY_Plane003"), [""])
sketch4.MapMode = "FlatFace"
sketch4.AttachmentOffset = App.Placement(Vector(0, 0, 6), App.Rotation())
sketch4.addGeometry([
    Part.LineSegment(Vector(23, 285, 0), Vector(23, 279, 0)),
    Part.LineSegment(Vector(23, 279, 0), Vector(31, 279, 0)),
    Part.LineSegment(Vector(31, 279, 0), Vector(31, 285, 0)),
    Part.LineSegment(Vector(31, 285, 0), Vector(23, 285, 0)),
], False)
sketch4.addConstraint([
    Sketcher.Constraint("Coincident", 0, 2, 1, 1),
    Sketcher.Constraint("Coincident", 1, 2, 2, 1),
    Sketcher.Constraint("Coincident", 2, 2, 3, 1),
    Sketcher.Constraint("Coincident", 3, 2, 0, 1),
    Sketcher.Constraint("Vertical", 0),
    Sketcher.Constraint("Horizontal", 1),
    Sketcher.Constraint("Vertical", 2),
    Sketcher.Constraint("Horizontal", 3),
    Sketcher.Constraint("DistanceX", 1, 1, 1, 2, 8.0),
    Sketcher.Constraint("DistanceY", 0, 2, 0, 1, 6.0),
    Sketcher.Constraint("DistanceX", -1, 1, 0, 2, 23.433059),
    Sketcher.Constraint("DistanceY", -1, 1, 0, 2, 279.375371),
])
sketch4.setExpression("Constraints[8]", "Params.sketch4_width")
sketch4.setExpression("Constraints[9]", "Params.sketch4_height")
pad4 = doc.addObject("PartDesign::Pad", "Pad003")
body4.addObject(pad4)
pad4.Profile = sketch4
pad4.setExpression("Length", "Params.pad4_length")
pad4.Reversed = True
body5 = doc.addObject("PartDesign::Body", "Body004")

# Sketch on XY plane
sketch5 = doc.addObject("Sketcher::SketchObject", "Sketch004")
body5.addObject(sketch5)
sketch5.AttachmentSupport = (doc.getObject("XY_Plane004"), [""])
sketch5.MapMode = "FlatFace"
sketch5.AttachmentOffset = App.Placement(Vector(0, 0, 6), App.Rotation())
sketch5.addGeometry([
    Part.LineSegment(Vector(51, 285, 0), Vector(51, 279, 0)),
    Part.LineSegment(Vector(51, 279, 0), Vector(59, 279, 0)),
    Part.LineSegment(Vector(59, 279, 0), Vector(59, 285, 0)),
    Part.LineSegment(Vector(59, 285, 0), Vector(51, 285, 0)),
], False)
sketch5.addConstraint([
    Sketcher.Constraint("Coincident", 0, 2, 1, 1),
    Sketcher.Constraint("Coincident", 1, 2, 2, 1),
    Sketcher.Constraint("Coincident", 2, 2, 3, 1),
    Sketcher.Constraint("Coincident", 3, 2, 0, 1),
    Sketcher.Constraint("Vertical", 0),
    Sketcher.Constraint("Horizontal", 1),
    Sketcher.Constraint("Vertical", 2),
    Sketcher.Constraint("Horizontal", 3),
    Sketcher.Constraint("DistanceX", 1, 1, 1, 2, 8.0),
    Sketcher.Constraint("DistanceY", 0, 2, 0, 1, 6.0),
    Sketcher.Constraint("DistanceX", -1, 1, 0, 2, 50.96285),
    Sketcher.Constraint("DistanceY", -1, 1, 0, 2, 279.375371),
])
sketch5.setExpression("Constraints[8]", "Params.sketch5_width")
sketch5.setExpression("Constraints[9]", "Params.sketch5_height")
pad5 = doc.addObject("PartDesign::Pad", "Pad004")
body5.addObject(pad5)
pad5.Profile = sketch5
pad5.setExpression("Length", "Params.pad5_length")
pad5.Reversed = True
body6 = doc.addObject("PartDesign::Body", "Body005")

# Sketch on XY plane
sketch6 = doc.addObject("Sketcher::SketchObject", "Sketch005")
body6.addObject(sketch6)
sketch6.AttachmentSupport = (doc.getObject("XY_Plane005"), [""])
sketch6.MapMode = "FlatFace"
sketch6.AttachmentOffset = App.Placement(Vector(0, 0, 6), App.Rotation())
sketch6.addGeometry([
    Part.LineSegment(Vector(63, 285, 0), Vector(63, 279, 0)),
    Part.LineSegment(Vector(63, 279, 0), Vector(71, 279, 0)),
    Part.LineSegment(Vector(71, 279, 0), Vector(71, 285, 0)),
    Part.LineSegment(Vector(71, 285, 0), Vector(63, 285, 0)),
], False)
sketch6.addConstraint([
    Sketcher.Constraint("Coincident", 0, 2, 1, 1),
    Sketcher.Constraint("Coincident", 1, 2, 2, 1),
    Sketcher.Constraint("Coincident", 2, 2, 3, 1),
    Sketcher.Constraint("Coincident", 3, 2, 0, 1),
    Sketcher.Constraint("Vertical", 0),
    Sketcher.Constraint("Horizontal", 1),
    Sketcher.Constraint("Vertical", 2),
    Sketcher.Constraint("Horizontal", 3),
    Sketcher.Constraint("DistanceX", 1, 1, 1, 2, 8.0),
    Sketcher.Constraint("DistanceY", 0, 2, 0, 1, 6.0),
    Sketcher.Constraint("DistanceX", -1, 1, 0, 2, 63.433059),
    Sketcher.Constraint("DistanceY", -1, 1, 0, 2, 279.375371),
])
sketch6.setExpression("Constraints[8]", "Params.sketch6_width")
sketch6.setExpression("Constraints[9]", "Params.sketch6_height")
pad6 = doc.addObject("PartDesign::Pad", "Pad005")
body6.addObject(pad6)
pad6.Profile = sketch6
pad6.setExpression("Length", "Params.pad6_length")
pad6.Reversed = True
body7 = doc.addObject("PartDesign::Body", "Body006")

# Sketch on XY plane
sketch7 = doc.addObject("Sketcher::SketchObject", "Sketch006")
body7.addObject(sketch7)
sketch7.AttachmentSupport = (doc.getObject("XY_Plane006"), [""])
sketch7.MapMode = "FlatFace"
sketch7.AttachmentOffset = App.Placement(Vector(0, 0, 6), App.Rotation())
sketch7.addGeometry([
    Part.LineSegment(Vector(83, 285, 0), Vector(83, 279, 0)),
    Part.LineSegment(Vector(83, 279, 0), Vector(91, 279, 0)),
    Part.LineSegment(Vector(91, 279, 0), Vector(91, 285, 0)),
    Part.LineSegment(Vector(91, 285, 0), Vector(83, 285, 0)),
], False)
sketch7.addConstraint([
    Sketcher.Constraint("Coincident", 0, 2, 1, 1),
    Sketcher.Constraint("Coincident", 1, 2, 2, 1),
    Sketcher.Constraint("Coincident", 2, 2, 3, 1),
    Sketcher.Constraint("Coincident", 3, 2, 0, 1),
    Sketcher.Constraint("Vertical", 0),
    Sketcher.Constraint("Horizontal", 1),
    Sketcher.Constraint("Vertical", 2),
    Sketcher.Constraint("Horizontal", 3),
    Sketcher.Constraint("DistanceX", 1, 1, 1, 2, 8.0),
    Sketcher.Constraint("DistanceY", 0, 2, 0, 1, 6.0),
    Sketcher.Constraint("DistanceX", -1, 1, 0, 2, 83.433059),
    Sketcher.Constraint("DistanceY", -1, 1, 0, 2, 279.375371),
])
sketch7.setExpression("Constraints[8]", "Params.sketch7_width")
sketch7.setExpression("Constraints[9]", "Params.sketch7_height")
pad7 = doc.addObject("PartDesign::Pad", "Pad006")
body7.addObject(pad7)
pad7.Profile = sketch7
pad7.setExpression("Length", "Params.pad7_length")
pad7.Reversed = True
body8 = doc.addObject("PartDesign::Body", "Body007")

# Sketch on XY plane
sketch8 = doc.addObject("Sketcher::SketchObject", "Sketch007")
body8.addObject(sketch8)
sketch8.AttachmentSupport = (doc.getObject("XY_Plane007"), [""])
sketch8.MapMode = "FlatFace"
sketch8.AttachmentOffset = App.Placement(Vector(0, 0, 6), App.Rotation())
sketch8.addGeometry([
    Part.LineSegment(Vector(103, 285, 0), Vector(103, 279, 0)),
    Part.LineSegment(Vector(103, 279, 0), Vector(111, 279, 0)),
    Part.LineSegment(Vector(111, 279, 0), Vector(111, 285, 0)),
    Part.LineSegment(Vector(111, 285, 0), Vector(103, 285, 0)),
], False)
sketch8.addConstraint([
    Sketcher.Constraint("Coincident", 0, 2, 1, 1),
    Sketcher.Constraint("Coincident", 1, 2, 2, 1),
    Sketcher.Constraint("Coincident", 2, 2, 3, 1),
    Sketcher.Constraint("Coincident", 3, 2, 0, 1),
    Sketcher.Constraint("Vertical", 0),
    Sketcher.Constraint("Horizontal", 1),
    Sketcher.Constraint("Vertical", 2),
    Sketcher.Constraint("Horizontal", 3),
    Sketcher.Constraint("DistanceX", 1, 1, 1, 2, 8.0),
    Sketcher.Constraint("DistanceY", 0, 2, 0, 1, 6.0),
    Sketcher.Constraint("DistanceX", -1, 1, 0, 2, 103.433059),
    Sketcher.Constraint("DistanceY", -1, 1, 0, 2, 279.375371),
])
sketch8.setExpression("Constraints[8]", "Params.sketch8_width")
sketch8.setExpression("Constraints[9]", "Params.sketch8_height")
pad8 = doc.addObject("PartDesign::Pad", "Pad007")
body8.addObject(pad8)
pad8.Profile = sketch8
pad8.setExpression("Length", "Params.pad8_length")
pad8.Reversed = True
body9 = doc.addObject("PartDesign::Body", "Body008")

# Sketch on XY plane
sketch9 = doc.addObject("Sketcher::SketchObject", "Sketch008")
body9.addObject(sketch9)
sketch9.AttachmentSupport = (doc.getObject("XY_Plane008"), [""])
sketch9.MapMode = "FlatFace"
sketch9.AttachmentOffset = App.Placement(Vector(0, 0, 6), App.Rotation())
sketch9.addGeometry([
    Part.LineSegment(Vector(123, 285, 0), Vector(123, 279, 0)),
    Part.LineSegment(Vector(123, 279, 0), Vector(131, 279, 0)),
    Part.LineSegment(Vector(131, 279, 0), Vector(131, 285, 0)),
    Part.LineSegment(Vector(131, 285, 0), Vector(123, 285, 0)),
], False)
sketch9.addConstraint([
    Sketcher.Constraint("Coincident", 0, 2, 1, 1),
    Sketcher.Constraint("Coincident", 1, 2, 2, 1),
    Sketcher.Constraint("Coincident", 2, 2, 3, 1),
    Sketcher.Constraint("Coincident", 3, 2, 0, 1),
    Sketcher.Constraint("Vertical", 0),
    Sketcher.Constraint("Horizontal", 1),
    Sketcher.Constraint("Vertical", 2),
    Sketcher.Constraint("Horizontal", 3),
    Sketcher.Constraint("DistanceX", 1, 1, 1, 2, 8.0),
    Sketcher.Constraint("DistanceY", 0, 2, 0, 1, 6.0),
    Sketcher.Constraint("DistanceX", -1, 1, 0, 2, 123.433059),
    Sketcher.Constraint("DistanceY", -1, 1, 0, 2, 279.375371),
])
sketch9.setExpression("Constraints[8]", "Params.sketch9_width")
sketch9.setExpression("Constraints[9]", "Params.sketch9_height")
pad9 = doc.addObject("PartDesign::Pad", "Pad008")
body9.addObject(pad9)
pad9.Profile = sketch9
pad9.setExpression("Length", "Params.pad9_length")
pad9.Reversed = True

doc.recompute()
